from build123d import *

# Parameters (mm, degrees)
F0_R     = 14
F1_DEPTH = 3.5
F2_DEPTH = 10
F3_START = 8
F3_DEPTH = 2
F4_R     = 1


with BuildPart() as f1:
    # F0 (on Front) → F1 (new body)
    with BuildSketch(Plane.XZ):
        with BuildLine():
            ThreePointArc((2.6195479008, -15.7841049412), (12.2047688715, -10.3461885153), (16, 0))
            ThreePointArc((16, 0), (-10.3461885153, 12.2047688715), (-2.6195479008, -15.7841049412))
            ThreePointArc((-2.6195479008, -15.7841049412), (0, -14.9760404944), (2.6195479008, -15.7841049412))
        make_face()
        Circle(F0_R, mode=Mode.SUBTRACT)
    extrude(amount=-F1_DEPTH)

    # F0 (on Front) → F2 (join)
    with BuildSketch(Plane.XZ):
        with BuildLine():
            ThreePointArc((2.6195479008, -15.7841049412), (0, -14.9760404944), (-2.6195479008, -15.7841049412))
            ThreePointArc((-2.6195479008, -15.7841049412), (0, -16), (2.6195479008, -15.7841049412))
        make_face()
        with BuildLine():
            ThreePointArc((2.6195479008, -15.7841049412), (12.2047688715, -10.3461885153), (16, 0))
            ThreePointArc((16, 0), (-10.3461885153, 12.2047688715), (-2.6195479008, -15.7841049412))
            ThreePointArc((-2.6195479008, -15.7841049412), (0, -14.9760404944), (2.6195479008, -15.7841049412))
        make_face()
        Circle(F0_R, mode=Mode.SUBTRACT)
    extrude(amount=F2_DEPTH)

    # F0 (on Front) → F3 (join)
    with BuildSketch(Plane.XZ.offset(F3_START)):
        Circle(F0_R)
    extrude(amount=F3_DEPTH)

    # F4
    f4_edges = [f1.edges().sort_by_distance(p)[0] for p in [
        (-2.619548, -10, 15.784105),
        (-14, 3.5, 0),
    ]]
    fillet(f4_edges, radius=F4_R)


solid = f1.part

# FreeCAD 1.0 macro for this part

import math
import FreeCAD as App
import Part
import Sketcher

V = App.Vector


def edges_at(feature, points):
    """Names of the edges that pass closest to the given points."""
    edges = feature.Shape.Edges
    near = lambda p: min(range(len(edges)), key=lambda i: edges[i].distToShape(Part.Vertex(*p))[0])
    return sorted({f"Edge{near(p) + 1}" for p in points})

doc = App.newDocument("Part")
params = doc.addObject("Spreadsheet::Sheet", "Params")
for row, (alias, value) in enumerate([
    ("sketch1_diameter", "28 mm"),
    ("sketch1_radius", "16 mm"),
    ("sketch1_radius2", "4.65 mm"),
    ("pad1_length", "3.5 mm"),
    ("sketch2_diameter", "28 mm"),
    ("sketch2_radius", "16 mm"),
    ("pad2_length", "10 mm"),
    ("sketch3_diameter", "28 mm"),
    ("pad3_length", "2 mm"),
    ("fillet_radius", "1 mm"),
], start=1):
    params.set(f"A{row}", alias)
    params.set(f"B{row}", "=" + value)
    params.setAlias(f"B{row}", alias)

body = doc.addObject("PartDesign::Body", "Body")

# Sketch on XZ plane
sketch1 = body.newObject("Sketcher::SketchObject", "Sketch")
sketch1.AttachmentSupport = (doc.getObject("XZ_Plane"), [""])
sketch1.MapMode = "FlatFace"
sketch1.addGeometry(Part.ArcOfCircle(Part.Circle(V(0, 0, 0), V(0, 0, 1), 16), math.radians(-80.577014), math.radians(0)), False)
sketch1.addGeometry(Part.ArcOfCircle(Part.Circle(V(0, 0, 0), V(0, 0, 1), 16), math.radians(0), math.radians(260.577014)), False)
sketch1.addGeometry(Part.ArcOfCircle(Part.Circle(V(0, -19.62604, 0), V(0, 0, 1), 4.65), math.radians(55.712651), math.radians(124.287349)), False)
sketch1.addGeometry(Part.Circle(V(0, 0, 0), V(0, 0, 1), 14), False)
sketch1.addConstraint(Sketcher.Constraint("Tangent", 0, 2, 1, 1))
sketch1.addConstraint(Sketcher.Constraint("Coincident", 1, 2, 2, 2))
sketch1.addConstraint(Sketcher.Constraint("Coincident", 2, 1, 0, 1))
sketch1.addConstraint(Sketcher.Constraint("Coincident", 0, 3, -1, 1))
sketch1.addConstraint(Sketcher.Constraint("Coincident", 3, 3, -1, 1))
sketch1.addConstraint(Sketcher.Constraint("Equal", 0, 1))
sketch1.addConstraint(Sketcher.Constraint("PointOnObject", 2, 3, -2))
sketch1.addConstraint(Sketcher.Constraint("PointOnObject", 0, 2, -1))
sketch1.addConstraint(Sketcher.Constraint("Diameter", 3, 28.0))
sketch1.addConstraint(Sketcher.Constraint("Radius", 0, 16.0))
sketch1.addConstraint(Sketcher.Constraint("Radius", 2, 4.65))
sketch1.addConstraint(Sketcher.Constraint("DistanceY", 2, 3, -1, 1, 19.62604))
sketch1.setExpression("Constraints[8]", "Params.sketch1_diameter")
sketch1.setExpression("Constraints[9]", "Params.sketch1_radius")
sketch1.setExpression("Constraints[10]", "Params.sketch1_radius2")
pad1 = body.newObject("PartDesign::Pad", "Pad")
pad1.Profile = sketch1
pad1.setExpression("Length", "Params.pad1_length")
pad1.Reversed = True

# Sketch on XZ plane
sketch2 = body.newObject("Sketcher::SketchObject", "Sketch001")
sketch2.AttachmentSupport = (doc.getObject("XZ_Plane"), [""])
sketch2.MapMode = "FlatFace"
sketch2.addGeometry(Part.ArcOfCircle(Part.Circle(V(0, 0, 0), V(0, 0, 1), 16), math.radians(-99.422986), math.radians(-80.577014)), False)
sketch2.addGeometry(Part.ArcOfCircle(Part.Circle(V(0, 0, 0), V(0, 0, 1), 16), math.radians(-80.577014), math.radians(0)), False)
sketch2.addGeometry(Part.ArcOfCircle(Part.Circle(V(0, 0, 0), V(0, 0, 1), 16), math.radians(0), math.radians(260.577014)), False)
sketch2.addGeometry(Part.Circle(V(0, 0, 0), V(0, 0, 1), 14), False)
sketch2.addConstraint(Sketcher.Constraint("Tangent", 0, 2, 1, 1))
sketch2.addConstraint(Sketcher.Constraint("Tangent", 1, 2, 2, 1))
sketch2.addConstraint(Sketcher.Constraint("Tangent", 2, 2, 0, 1))
sketch2.addConstraint(Sketcher.Constraint("Coincident", 0, 3, -1, 1))
sketch2.addConstraint(Sketcher.Constraint("Coincident", 3, 3, -1, 1))
sketch2.addConstraint(Sketcher.Constraint("PointOnObject", 1, 2, -1))
sketch2.addConstraint(Sketcher.Constraint("Horizontal", 0, 2, 2, 2))
sketch2.addConstraint(Sketcher.Constraint("Diameter", 3, 28.0))
sketch2.addConstraint(Sketcher.Constraint("Radius", 0, 16.0))
sketch2.addConstraint(Sketcher.Constraint("DistanceX", -1, 1, 0, 2, 2.619548))
sketch2.setExpression("Constraints[7]", "Params.sketch2_diameter")
sketch2.setExpression("Constraints[8]", "Params.sketch2_radius")
pad2 = body.newObject("PartDesign::Pad", "Pad001")
pad2.Profile = sketch2
pad2.setExpression("Length", "Params.pad2_length")

# Sketch on XZ plane
sketch3 = body.newObject("Sketcher::SketchObject", "Sketch002")
sketch3.AttachmentSupport = (doc.getObject("XZ_Plane"), [""])
sketch3.MapMode = "FlatFace"
sketch3.AttachmentOffset = App.Placement(V(0, 0, 8), App.Rotation())
sketch3.addGeometry(Part.Circle(V(0, 0, 0), V(0, 0, 1), 14), False)
sketch3.addConstraint(Sketcher.Constraint("Coincident", 0, 3, -1, 1))
sketch3.addConstraint(Sketcher.Constraint("Diameter", 0, 28.0))
sketch3.setExpression("Constraints[1]", "Params.sketch3_diameter")
pad3 = body.newObject("PartDesign::Pad", "Pad002")
pad3.Profile = sketch3
pad3.setExpression("Length", "Params.pad3_length")
doc.recompute()

fillet = body.newObject("PartDesign::Fillet", "Fillet")
fillet.Base = (pad3, edges_at(pad3, [(-10.346, -10, 12.205), (-14, 3.5, 0)]))
fillet.setExpression("Radius", "Params.fillet_radius")

doc.recompute()
